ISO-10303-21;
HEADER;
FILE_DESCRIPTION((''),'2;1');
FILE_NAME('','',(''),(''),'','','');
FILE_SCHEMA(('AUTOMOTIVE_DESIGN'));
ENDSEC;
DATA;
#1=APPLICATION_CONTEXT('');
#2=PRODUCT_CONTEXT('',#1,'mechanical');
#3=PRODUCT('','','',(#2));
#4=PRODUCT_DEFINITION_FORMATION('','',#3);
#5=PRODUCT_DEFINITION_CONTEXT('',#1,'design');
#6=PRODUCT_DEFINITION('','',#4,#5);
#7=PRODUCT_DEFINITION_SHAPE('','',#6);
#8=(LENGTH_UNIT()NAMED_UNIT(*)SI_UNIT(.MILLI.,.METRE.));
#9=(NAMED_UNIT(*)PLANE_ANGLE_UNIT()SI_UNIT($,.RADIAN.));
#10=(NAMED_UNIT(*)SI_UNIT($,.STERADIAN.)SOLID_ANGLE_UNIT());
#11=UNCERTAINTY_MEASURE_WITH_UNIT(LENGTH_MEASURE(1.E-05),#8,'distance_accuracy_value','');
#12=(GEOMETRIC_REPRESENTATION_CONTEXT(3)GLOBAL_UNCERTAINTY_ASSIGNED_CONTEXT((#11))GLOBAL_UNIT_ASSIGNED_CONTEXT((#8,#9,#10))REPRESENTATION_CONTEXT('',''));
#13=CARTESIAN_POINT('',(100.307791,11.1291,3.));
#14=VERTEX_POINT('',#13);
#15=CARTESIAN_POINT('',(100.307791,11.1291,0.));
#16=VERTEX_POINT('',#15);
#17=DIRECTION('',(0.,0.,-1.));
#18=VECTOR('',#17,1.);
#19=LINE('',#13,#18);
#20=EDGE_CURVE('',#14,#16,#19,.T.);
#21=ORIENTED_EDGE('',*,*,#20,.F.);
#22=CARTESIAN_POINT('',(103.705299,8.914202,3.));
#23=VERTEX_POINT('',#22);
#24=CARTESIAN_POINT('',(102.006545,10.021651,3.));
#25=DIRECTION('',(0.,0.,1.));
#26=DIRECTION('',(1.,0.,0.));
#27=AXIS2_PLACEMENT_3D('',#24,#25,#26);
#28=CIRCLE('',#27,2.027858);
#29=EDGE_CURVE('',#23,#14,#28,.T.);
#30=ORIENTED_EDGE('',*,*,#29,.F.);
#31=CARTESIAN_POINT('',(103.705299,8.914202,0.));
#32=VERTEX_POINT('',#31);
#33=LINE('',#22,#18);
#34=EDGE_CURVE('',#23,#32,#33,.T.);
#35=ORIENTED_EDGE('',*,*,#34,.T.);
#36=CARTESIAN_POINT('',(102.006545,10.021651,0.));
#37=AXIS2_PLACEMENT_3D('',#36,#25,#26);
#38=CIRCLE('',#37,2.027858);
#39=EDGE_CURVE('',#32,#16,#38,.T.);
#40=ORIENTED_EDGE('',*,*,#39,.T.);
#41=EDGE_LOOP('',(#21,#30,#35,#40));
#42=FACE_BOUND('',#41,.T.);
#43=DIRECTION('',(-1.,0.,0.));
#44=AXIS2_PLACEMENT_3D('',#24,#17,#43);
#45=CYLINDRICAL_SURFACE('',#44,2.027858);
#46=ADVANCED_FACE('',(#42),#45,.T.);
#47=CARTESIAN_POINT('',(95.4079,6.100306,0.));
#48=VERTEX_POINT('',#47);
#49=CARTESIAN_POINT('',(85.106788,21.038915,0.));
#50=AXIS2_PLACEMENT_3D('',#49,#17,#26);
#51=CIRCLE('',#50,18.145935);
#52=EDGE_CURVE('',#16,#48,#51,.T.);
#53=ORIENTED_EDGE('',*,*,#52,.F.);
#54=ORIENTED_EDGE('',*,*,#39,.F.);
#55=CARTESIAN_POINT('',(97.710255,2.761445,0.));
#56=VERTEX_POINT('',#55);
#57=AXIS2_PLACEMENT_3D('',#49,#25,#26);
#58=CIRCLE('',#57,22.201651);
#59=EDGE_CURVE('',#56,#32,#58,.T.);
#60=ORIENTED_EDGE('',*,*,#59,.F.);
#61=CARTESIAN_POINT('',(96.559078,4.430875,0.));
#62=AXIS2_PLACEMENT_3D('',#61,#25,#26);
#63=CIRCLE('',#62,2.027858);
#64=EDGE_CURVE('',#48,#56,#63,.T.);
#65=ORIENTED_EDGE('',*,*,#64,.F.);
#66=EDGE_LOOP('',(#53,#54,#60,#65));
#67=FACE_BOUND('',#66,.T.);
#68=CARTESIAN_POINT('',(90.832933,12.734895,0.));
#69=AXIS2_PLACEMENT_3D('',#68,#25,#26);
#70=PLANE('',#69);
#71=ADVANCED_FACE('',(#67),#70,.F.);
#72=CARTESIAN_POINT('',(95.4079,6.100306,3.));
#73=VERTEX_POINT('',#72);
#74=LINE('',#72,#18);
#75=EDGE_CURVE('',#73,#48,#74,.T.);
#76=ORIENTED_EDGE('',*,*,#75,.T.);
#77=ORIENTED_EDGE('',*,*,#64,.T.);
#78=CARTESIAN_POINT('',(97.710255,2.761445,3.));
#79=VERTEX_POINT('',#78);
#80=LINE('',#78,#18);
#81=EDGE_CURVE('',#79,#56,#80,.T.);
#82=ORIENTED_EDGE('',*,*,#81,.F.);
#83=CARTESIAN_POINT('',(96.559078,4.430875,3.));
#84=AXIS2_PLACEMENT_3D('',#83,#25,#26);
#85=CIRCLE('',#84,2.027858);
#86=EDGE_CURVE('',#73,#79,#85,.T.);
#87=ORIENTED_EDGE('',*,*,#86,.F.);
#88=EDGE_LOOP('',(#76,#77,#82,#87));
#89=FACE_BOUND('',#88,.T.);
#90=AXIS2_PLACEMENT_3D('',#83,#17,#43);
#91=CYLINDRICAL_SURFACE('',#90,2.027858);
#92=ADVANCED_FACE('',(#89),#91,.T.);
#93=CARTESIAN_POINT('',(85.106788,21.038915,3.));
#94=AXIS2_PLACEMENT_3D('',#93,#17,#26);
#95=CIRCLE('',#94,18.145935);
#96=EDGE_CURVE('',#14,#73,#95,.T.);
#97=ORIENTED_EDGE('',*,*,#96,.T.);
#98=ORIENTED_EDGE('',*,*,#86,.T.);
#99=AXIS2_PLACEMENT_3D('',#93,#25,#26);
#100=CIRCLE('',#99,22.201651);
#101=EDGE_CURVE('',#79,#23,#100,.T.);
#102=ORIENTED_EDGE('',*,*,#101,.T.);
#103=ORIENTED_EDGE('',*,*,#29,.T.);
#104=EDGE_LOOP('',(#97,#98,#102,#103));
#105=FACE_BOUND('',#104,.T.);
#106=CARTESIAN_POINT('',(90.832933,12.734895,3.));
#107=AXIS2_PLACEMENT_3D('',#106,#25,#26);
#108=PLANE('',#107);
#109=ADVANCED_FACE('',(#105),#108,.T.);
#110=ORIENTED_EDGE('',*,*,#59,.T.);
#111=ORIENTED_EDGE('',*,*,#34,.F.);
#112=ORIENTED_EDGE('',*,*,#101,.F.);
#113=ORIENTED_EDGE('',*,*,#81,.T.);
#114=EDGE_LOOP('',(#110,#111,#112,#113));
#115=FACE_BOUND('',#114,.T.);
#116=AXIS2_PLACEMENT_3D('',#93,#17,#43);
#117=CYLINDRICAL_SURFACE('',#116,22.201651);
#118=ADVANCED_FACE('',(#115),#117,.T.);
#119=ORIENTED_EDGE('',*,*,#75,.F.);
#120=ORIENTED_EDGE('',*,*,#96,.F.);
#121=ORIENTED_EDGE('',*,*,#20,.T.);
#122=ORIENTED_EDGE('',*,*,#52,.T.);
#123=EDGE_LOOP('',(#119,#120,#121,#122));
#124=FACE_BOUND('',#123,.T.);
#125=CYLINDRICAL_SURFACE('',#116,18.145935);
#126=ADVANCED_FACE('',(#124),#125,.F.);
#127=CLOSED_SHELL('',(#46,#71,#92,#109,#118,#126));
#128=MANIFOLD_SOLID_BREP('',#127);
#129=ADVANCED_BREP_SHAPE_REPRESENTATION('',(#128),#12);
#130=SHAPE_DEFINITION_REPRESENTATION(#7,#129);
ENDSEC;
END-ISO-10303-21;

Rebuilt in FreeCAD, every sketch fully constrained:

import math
import FreeCAD as App
import Part
import Sketcher
from FreeCAD import Vector

doc = App.newDocument("Part")
body = doc.addObject("PartDesign::Body", "Body")

sketch1 = body.newObject("Sketcher::SketchObject", "Sketch")
sketch1.AttachmentSupport = (doc.getObject("XY_Plane"), [""])
sketch1.MapMode = "FlatFace"
sketch1.addGeometry([
    Part.ArcOfCircle(Part.Circle(Vector(85.106788, 21.038915, 0), Vector(0, 0, 1), 22.201651), math.radians(-55.411289), math.radians(-33.101071)),
    Part.ArcOfCircle(Part.Circle(Vector(102.006545, 10.021651, 0), Vector(0, 0, 1), 2.027858), math.radians(-33.101071), math.radians(146.898929)),
    Part.ArcOfCircle(Part.Circle(Vector(85.106788, 21.038915, 0), Vector(0, 0, 1), 18.145935), math.radians(-55.411289), math.radians(-33.101071)),
    Part.ArcOfCircle(Part.Circle(Vector(96.559078, 4.430875, 0), Vector(0, 0, 1), 2.027858), math.radians(124.588711), math.radians(304.588711)),
], False)
sketch1.addConstraint([
    Sketcher.Constraint("Tangent", 0, 2, 1, 1),
    Sketcher.Constraint("Tangent", 1, 2, 2, 2),
    Sketcher.Constraint("Tangent", 2, 1, 3, 1),
    Sketcher.Constraint("Tangent", 3, 2, 0, 1),
    Sketcher.Constraint("Coincident", 2, 3, 0, 3),
    Sketcher.Constraint("Radius", 0, 22.201651),
    Sketcher.Constraint("Radius", 1, 2.027858),
    Sketcher.Constraint("DistanceX", -1, 1, 0, 2, 103.705299),
    Sketcher.Constraint("DistanceY", -1, 1, 1, 2, 11.1291),
    Sketcher.Constraint("DistanceX", -1, 1, 2, 1, 95.4079),
    Sketcher.Constraint("DistanceY", 0, 2, 1, 2, 2.214898),
])
pad1 = body.newObject("PartDesign::Pad", "Pad")
pad1.Profile = sketch1
pad1.Length = 3

doc.recompute()
